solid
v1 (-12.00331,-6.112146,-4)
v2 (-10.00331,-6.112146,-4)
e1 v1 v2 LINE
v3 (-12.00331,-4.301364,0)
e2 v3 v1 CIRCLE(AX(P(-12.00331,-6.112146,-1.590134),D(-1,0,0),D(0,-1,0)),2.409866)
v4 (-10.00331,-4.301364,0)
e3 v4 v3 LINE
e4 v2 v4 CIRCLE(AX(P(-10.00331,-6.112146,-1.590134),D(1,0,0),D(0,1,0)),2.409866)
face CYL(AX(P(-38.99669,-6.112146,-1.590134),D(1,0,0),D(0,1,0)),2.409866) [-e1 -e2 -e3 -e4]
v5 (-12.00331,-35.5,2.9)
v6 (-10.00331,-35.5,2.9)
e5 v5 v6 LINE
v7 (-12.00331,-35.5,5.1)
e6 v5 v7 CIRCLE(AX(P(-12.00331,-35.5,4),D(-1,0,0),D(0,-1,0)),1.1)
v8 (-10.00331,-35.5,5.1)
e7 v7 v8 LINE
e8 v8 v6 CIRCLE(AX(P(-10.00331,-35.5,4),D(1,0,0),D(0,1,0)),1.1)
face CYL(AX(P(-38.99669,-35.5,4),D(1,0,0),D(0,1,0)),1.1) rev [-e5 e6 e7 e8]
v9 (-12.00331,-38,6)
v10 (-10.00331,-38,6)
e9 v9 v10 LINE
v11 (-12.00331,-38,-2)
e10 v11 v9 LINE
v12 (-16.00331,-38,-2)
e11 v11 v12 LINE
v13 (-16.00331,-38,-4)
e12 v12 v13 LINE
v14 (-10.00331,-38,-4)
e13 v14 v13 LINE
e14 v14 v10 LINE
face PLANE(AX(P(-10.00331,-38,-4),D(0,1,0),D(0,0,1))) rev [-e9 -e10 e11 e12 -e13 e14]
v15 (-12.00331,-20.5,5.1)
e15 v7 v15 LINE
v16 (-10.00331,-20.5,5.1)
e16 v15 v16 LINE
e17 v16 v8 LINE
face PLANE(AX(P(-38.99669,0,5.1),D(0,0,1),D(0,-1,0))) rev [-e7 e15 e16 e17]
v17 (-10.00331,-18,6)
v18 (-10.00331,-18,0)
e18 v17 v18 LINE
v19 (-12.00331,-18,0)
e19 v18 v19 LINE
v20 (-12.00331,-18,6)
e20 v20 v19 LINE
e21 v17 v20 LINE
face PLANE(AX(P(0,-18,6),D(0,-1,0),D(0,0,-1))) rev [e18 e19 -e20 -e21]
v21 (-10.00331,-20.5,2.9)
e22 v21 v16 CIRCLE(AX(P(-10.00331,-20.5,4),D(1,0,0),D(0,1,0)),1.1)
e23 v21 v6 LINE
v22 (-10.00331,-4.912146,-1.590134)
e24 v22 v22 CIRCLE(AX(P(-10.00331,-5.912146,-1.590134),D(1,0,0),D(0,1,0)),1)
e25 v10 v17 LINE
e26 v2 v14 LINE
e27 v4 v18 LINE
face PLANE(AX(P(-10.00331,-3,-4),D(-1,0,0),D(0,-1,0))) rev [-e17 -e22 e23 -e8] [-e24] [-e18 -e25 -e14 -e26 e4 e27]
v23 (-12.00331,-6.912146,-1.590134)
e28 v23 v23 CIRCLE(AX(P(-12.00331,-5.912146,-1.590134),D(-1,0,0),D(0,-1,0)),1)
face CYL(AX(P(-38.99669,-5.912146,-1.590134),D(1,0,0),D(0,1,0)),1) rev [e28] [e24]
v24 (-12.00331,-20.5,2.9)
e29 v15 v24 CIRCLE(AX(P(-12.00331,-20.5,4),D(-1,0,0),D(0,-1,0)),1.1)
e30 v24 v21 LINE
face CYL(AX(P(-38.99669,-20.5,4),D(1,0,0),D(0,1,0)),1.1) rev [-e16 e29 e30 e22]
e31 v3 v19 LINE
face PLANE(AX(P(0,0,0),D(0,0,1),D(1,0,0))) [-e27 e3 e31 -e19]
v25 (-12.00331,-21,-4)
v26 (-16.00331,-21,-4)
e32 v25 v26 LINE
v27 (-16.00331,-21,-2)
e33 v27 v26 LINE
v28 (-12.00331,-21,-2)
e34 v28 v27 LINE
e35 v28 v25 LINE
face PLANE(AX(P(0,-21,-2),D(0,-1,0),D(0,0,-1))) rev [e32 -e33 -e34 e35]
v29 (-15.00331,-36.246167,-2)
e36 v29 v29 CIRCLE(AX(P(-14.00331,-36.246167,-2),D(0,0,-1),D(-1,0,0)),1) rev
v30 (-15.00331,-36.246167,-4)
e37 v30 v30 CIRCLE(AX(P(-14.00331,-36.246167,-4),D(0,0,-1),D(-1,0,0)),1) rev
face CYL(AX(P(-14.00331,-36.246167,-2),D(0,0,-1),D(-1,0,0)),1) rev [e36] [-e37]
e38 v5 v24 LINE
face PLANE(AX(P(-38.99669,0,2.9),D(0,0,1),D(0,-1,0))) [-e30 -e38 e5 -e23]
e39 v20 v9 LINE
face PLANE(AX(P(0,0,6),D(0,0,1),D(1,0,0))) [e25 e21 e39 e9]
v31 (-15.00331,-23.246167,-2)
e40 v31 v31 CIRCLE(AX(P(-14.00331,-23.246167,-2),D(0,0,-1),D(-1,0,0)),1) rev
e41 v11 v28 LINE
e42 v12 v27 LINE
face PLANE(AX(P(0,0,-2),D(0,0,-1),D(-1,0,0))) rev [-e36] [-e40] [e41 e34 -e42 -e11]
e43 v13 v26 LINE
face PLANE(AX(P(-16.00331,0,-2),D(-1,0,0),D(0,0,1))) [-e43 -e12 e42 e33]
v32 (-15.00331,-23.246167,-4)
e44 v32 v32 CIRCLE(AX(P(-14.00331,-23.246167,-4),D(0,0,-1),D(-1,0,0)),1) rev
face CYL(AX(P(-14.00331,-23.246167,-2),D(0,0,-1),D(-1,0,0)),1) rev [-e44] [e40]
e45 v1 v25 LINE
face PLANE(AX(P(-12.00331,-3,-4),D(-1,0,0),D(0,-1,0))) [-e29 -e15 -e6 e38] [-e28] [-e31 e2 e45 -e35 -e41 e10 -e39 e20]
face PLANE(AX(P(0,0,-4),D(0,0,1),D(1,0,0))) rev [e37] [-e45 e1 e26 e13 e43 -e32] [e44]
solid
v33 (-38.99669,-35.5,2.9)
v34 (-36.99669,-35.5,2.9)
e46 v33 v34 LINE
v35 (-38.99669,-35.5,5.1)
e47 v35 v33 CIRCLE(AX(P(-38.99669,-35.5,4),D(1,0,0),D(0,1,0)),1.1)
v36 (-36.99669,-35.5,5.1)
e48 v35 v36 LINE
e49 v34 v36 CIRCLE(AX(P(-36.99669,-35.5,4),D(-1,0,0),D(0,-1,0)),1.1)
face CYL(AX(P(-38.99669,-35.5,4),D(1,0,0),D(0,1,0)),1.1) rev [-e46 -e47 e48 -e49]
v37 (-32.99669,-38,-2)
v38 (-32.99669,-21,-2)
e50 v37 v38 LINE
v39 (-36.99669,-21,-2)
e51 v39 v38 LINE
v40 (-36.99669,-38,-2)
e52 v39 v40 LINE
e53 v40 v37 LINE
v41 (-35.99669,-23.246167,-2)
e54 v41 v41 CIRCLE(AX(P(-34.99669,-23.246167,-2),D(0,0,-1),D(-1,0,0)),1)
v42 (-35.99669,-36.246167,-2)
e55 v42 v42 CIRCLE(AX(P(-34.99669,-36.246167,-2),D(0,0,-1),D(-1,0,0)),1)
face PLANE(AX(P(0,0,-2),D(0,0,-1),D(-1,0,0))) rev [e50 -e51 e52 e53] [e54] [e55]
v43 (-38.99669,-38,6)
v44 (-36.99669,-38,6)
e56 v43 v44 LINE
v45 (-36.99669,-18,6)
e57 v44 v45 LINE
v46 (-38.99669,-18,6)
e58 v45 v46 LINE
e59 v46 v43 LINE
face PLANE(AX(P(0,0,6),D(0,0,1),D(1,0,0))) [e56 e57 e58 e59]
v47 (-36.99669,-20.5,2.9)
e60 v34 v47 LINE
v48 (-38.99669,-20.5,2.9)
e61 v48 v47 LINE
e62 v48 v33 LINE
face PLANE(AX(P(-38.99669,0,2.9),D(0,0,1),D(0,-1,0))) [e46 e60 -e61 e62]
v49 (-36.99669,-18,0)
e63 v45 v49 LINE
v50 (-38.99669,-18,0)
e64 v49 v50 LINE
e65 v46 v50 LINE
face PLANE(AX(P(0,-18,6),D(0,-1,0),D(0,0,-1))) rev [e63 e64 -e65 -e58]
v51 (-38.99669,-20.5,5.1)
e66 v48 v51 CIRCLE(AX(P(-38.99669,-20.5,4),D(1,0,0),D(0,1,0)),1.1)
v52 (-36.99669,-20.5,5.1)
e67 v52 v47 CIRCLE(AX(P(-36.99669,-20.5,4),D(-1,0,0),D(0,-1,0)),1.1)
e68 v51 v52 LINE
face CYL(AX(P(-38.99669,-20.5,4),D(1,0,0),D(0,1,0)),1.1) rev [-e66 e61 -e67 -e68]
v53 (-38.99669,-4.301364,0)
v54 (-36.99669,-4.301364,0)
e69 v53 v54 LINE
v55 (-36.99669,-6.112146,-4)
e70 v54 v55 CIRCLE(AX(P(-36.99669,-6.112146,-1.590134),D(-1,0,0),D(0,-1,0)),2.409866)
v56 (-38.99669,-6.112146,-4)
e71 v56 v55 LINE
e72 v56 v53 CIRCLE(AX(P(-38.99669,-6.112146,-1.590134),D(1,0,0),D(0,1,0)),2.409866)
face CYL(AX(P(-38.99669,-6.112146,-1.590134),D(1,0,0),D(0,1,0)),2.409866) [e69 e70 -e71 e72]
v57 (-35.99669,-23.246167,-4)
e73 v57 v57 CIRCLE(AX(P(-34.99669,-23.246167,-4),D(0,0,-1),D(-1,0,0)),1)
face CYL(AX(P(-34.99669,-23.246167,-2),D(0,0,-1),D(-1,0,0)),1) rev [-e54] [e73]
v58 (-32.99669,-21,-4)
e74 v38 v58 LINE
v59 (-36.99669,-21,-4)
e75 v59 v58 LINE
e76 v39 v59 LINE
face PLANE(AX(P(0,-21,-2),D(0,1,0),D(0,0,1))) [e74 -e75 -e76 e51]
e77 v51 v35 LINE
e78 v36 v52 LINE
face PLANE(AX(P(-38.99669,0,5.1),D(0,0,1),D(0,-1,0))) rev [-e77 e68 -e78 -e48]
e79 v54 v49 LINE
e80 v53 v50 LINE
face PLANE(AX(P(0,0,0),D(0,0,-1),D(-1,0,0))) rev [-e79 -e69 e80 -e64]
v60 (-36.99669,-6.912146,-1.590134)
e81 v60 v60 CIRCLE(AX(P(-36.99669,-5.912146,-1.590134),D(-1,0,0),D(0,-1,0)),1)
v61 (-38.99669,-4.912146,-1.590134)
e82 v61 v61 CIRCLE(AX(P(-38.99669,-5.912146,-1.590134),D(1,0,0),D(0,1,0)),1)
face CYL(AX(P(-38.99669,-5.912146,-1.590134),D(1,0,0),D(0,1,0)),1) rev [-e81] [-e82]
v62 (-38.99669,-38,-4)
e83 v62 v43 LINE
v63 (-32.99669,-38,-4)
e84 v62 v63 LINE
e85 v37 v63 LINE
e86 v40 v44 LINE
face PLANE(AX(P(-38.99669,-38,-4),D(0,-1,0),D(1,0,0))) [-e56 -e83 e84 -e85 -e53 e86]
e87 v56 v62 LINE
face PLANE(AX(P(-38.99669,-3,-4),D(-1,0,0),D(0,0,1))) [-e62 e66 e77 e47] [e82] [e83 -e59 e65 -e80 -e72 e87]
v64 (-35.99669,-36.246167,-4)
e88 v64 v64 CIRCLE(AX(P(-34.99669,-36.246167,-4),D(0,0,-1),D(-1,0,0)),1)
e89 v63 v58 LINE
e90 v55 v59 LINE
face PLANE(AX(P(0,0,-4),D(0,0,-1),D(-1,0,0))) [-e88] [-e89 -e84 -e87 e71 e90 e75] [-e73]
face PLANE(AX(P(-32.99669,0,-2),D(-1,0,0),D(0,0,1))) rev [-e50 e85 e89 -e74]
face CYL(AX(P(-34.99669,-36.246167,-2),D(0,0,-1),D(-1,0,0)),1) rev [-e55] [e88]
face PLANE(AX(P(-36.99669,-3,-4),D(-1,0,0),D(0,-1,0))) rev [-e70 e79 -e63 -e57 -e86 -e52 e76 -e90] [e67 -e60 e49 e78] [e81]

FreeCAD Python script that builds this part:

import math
import FreeCAD as App
import Part
import Sketcher
from FreeCAD import Vector
Q = App.Units.Quantity

doc = App.newDocument("Part")
body = doc.addObject("PartDesign::Body", "Body")

# Sketch on XY plane
sketch1 = body.newObject("Sketcher::SketchObject", "Sketch")
sketch1.AttachmentSupport = (doc.getObject("XY_Plane"), [""])
sketch1.MapMode = "FlatFace"
sketch1.addGeometry(Part.LineSegment(Vector(-39, -3, 0), Vector(-39, -38, 0)), False)
sketch1.addGeometry(Part.LineSegment(Vector(-39, -38, 0), Vector(-37, -38, 0)), False)
sketch1.addGeometry(Part.LineSegment(Vector(-37, -38, 0), Vector(-37, -3, 0)), False)
sketch1.addGeometry(Part.LineSegment(Vector(-37, -3, 0), Vector(-39, -3, 0)), False)
sketch1.addConstraint(Sketcher.Constraint("Coincident", 0, 2, 1, 1))
sketch1.addConstraint(Sketcher.Constraint("Coincident", 1, 2, 2, 1))
sketch1.addConstraint(Sketcher.Constraint("Coincident", 2, 2, 3, 1))
sketch1.addConstraint(Sketcher.Constraint("Coincident", 3, 2, 0, 1))
sketch1.addConstraint(Sketcher.Constraint("Vertical", 0))
sketch1.addConstraint(Sketcher.Constraint("Horizontal", 1))
sketch1.addConstraint(Sketcher.Constraint("Vertical", 2))
sketch1.addConstraint(Sketcher.Constraint("Horizontal", 3))
sketch1.addConstraint(Sketcher.Constraint("DistanceX", 1, 1, 1, 2, Q("2 mm")))
sketch1.addConstraint(Sketcher.Constraint("DistanceY", 0, 2, 0, 1, Q("35 mm")))
sketch1.addConstraint(Sketcher.Constraint("DistanceY", 0, 2, -1, 1, Q("38 mm")))
sketch1.addConstraint(Sketcher.Constraint("DistanceX", 0, 2, -1, 1, Q("38.99669 mm")))
pad1 = body.newObject("PartDesign::Pad", "Pad")
pad1.Profile = sketch1
pad1.Length = 4
pad1.Reversed = True
body2 = doc.addObject("PartDesign::Body", "Body001")

# Sketch on XY plane
sketch2 = body2.newObject("Sketcher::SketchObject", "Sketch001")
sketch2.AttachmentSupport = (doc.getObject("XY_Plane001"), [""])
sketch2.MapMode = "FlatFace"
sketch2.addGeometry(Part.LineSegment(Vector(-12, -3, 0), Vector(-12, -38, 0)), False)
sketch2.addGeometry(Part.LineSegment(Vector(-12, -38, 0), Vector(-10, -38, 0)), False)
sketch2.addGeometry(Part.LineSegment(Vector(-10, -38, 0), Vector(-10, -3, 0)), False)
sketch2.addGeometry(Part.LineSegment(Vector(-10, -3, 0), Vector(-12, -3, 0)), False)
sketch2.addConstraint(Sketcher.Constraint("Coincident", 0, 2, 1, 1))
sketch2.addConstraint(Sketcher.Constraint("Coincident", 1, 2, 2, 1))
sketch2.addConstraint(Sketcher.Constraint("Coincident", 2, 2, 3, 1))
sketch2.addConstraint(Sketcher.Constraint("Coincident", 3, 2, 0, 1))
sketch2.addConstraint(Sketcher.Constraint("Vertical", 0))
sketch2.addConstraint(Sketcher.Constraint("Horizontal", 1))
sketch2.addConstraint(Sketcher.Constraint("Vertical", 2))
sketch2.addConstraint(Sketcher.Constraint("Horizontal", 3))
sketch2.addConstraint(Sketcher.Constraint("DistanceX", 1, 1, 1, 2, Q("2 mm")))
sketch2.addConstraint(Sketcher.Constraint("DistanceY", 0, 2, 0, 1, Q("35 mm")))
sketch2.addConstraint(Sketcher.Constraint("DistanceY", 0, 2, -1, 1, Q("38 mm")))
sketch2.addConstraint(Sketcher.Constraint("DistanceX", 0, 2, -1, 1, Q("12.00331 mm")))
pad2 = body2.newObject("PartDesign::Pad", "Pad001")
pad2.Profile = sketch2
pad2.Length = 4
pad2.Reversed = True
body.AllowCompound = True
doc.recompute()

boolean = body.newObject("PartDesign::Boolean", "Boolean")
boolean.Type = "Fuse"
boolean.addObjects([body2])

# Sketch on XY plane
sketch3 = body.newObject("Sketcher::SketchObject", "Sketch002")
sketch3.AttachmentSupport = (doc.getObject("XY_Plane"), [""])
sketch3.MapMode = "FlatFace"
sketch3.AttachmentOffset = App.Placement(Vector(0, 0, -4), App.Rotation())
sketch3.addGeometry(Part.LineSegment(Vector(-33, -21, 0), Vector(-33, -38, 0)), False)
sketch3.addGeometry(Part.LineSegment(Vector(-33, -38, 0), Vector(-37, -38, 0)), False)
sketch3.addGeometry(Part.LineSegment(Vector(-37, -38, 0), Vector(-37, -21, 0)), False)
sketch3.addGeometry(Part.LineSegment(Vector(-37, -21, 0), Vector(-33, -21, 0)), False)
sketch3.addGeometry(Part.LineSegment(Vector(-12, -21, 0), Vector(-12, -38, 0)), False)
sketch3.addGeometry(Part.LineSegment(Vector(-12, -38, 0), Vector(-16, -38, 0)), False)
sketch3.addGeometry(Part.LineSegment(Vector(-16, -38, 0), Vector(-16, -21, 0)), False)
sketch3.addGeometry(Part.LineSegment(Vector(-16, -21, 0), Vector(-12, -21, 0)), False)
sketch3.addConstraint(Sketcher.Constraint("Coincident", 0, 2, 1, 1))
sketch3.addConstraint(Sketcher.Constraint("Coincident", 1, 2, 2, 1))
sketch3.addConstraint(Sketcher.Constraint("Coincident", 2, 2, 3, 1))
sketch3.addConstraint(Sketcher.Constraint("Coincident", 3, 2, 0, 1))
sketch3.addConstraint(Sketcher.Constraint("Coincident", 4, 2, 5, 1))
sketch3.addConstraint(Sketcher.Constraint("Coincident", 5, 2, 6, 1))
sketch3.addConstraint(Sketcher.Constraint("Coincident", 6, 2, 7, 1))
sketch3.addConstraint(Sketcher.Constraint("Coincident", 7, 2, 4, 1))
sketch3.addConstraint(Sketcher.Constraint("Vertical", 0))
sketch3.addConstraint(Sketcher.Constraint("Horizontal", 1))
sketch3.addConstraint(Sketcher.Constraint("Vertical", 2))
sketch3.addConstraint(Sketcher.Constraint("Horizontal", 3))
sketch3.addConstraint(Sketcher.Constraint("Vertical", 4))
sketch3.addConstraint(Sketcher.Constraint("Horizontal", 5))
sketch3.addConstraint(Sketcher.Constraint("Vertical", 6))
sketch3.addConstraint(Sketcher.Constraint("Horizontal", 7))
sketch3.addConstraint(Sketcher.Constraint("Horizontal", 1, 2, 4, 2))
sketch3.addConstraint(Sketcher.Constraint("Horizontal", 3, 2, 6, 2))
sketch3.addConstraint(Sketcher.Constraint("Equal", 3, 5))
sketch3.addConstraint(Sketcher.Constraint("DistanceX", 1, 2, 1, 1, Q("4 mm")))
sketch3.addConstraint(Sketcher.Constraint("DistanceY", 0, 2, 0, 1, Q("17 mm")))
sketch3.addConstraint(Sketcher.Constraint("DistanceY", 0, 2, -1, 1, Q("38 mm")))
sketch3.addConstraint(Sketcher.Constraint("DistanceX", 0, 2, -1, 1, Q("32.99669 mm")))
sketch3.addConstraint(Sketcher.Constraint("DistanceX", 4, 2, -1, 1, Q("12.00331 mm")))
pad3 = body.newObject("PartDesign::Pad", "Pad002")
pad3.Profile = sketch3
pad3.Length = 2

# Sketch on XY plane
sketch4 = body.newObject("Sketcher::SketchObject", "Sketch003")
sketch4.AttachmentSupport = (doc.getObject("XY_Plane"), [""])
sketch4.MapMode = "FlatFace"
sketch4.AttachmentOffset = App.Placement(Vector(0, 0, -4), App.Rotation())
sketch4.addGeometry(Part.Circle(Vector(-35, -36.2, 0), Vector(0, 0, 1), 1), False)
sketch4.addGeometry(Part.Circle(Vector(-35, -23.2, 0), Vector(0, 0, 1), 1), False)
sketch4.addGeometry(Part.Circle(Vector(-14, -36.2, 0), Vector(0, 0, 1), 1), False)
sketch4.addGeometry(Part.Circle(Vector(-14, -23.2, 0), Vector(0, 0, 1), 1), False)
sketch4.addConstraint(Sketcher.Constraint("Equal", 0, 1))
sketch4.addConstraint(Sketcher.Constraint("Equal", 1, 2))
sketch4.addConstraint(Sketcher.Constraint("Equal", 2, 3))
sketch4.addConstraint(Sketcher.Constraint("Horizontal", 0, 3, 2, 3))
sketch4.addConstraint(Sketcher.Constraint("Horizontal", 1, 3, 3, 3))
sketch4.addConstraint(Sketcher.Constraint("Vertical", 0, 3, 1, 3))
sketch4.addConstraint(Sketcher.Constraint("Vertical", 2, 3, 3, 3))
sketch4.addConstraint(Sketcher.Constraint("Diameter", 0, Q("2 mm")))
sketch4.addConstraint(Sketcher.Constraint("DistanceY", 0, 3, 1, 3, Q("13 mm")))
sketch4.addConstraint(Sketcher.Constraint("DistanceX", 0, 3, -1, 1, Q("34.99669 mm")))
sketch4.addConstraint(Sketcher.Constraint("DistanceX", 2, 3, -1, 1, Q("14.00331 mm")))
sketch4.addConstraint(Sketcher.Constraint("DistanceY", 0, 3, -1, 1, Q("36.246167 mm")))
pocket1 = body.newObject("PartDesign::Pocket", "Pocket")
pocket1.Profile = sketch4
pocket1.Length = 2
pocket1.Reversed = True

# Sketch on XY plane
sketch5 = body.newObject("Sketcher::SketchObject", "Sketch004")
sketch5.AttachmentSupport = (doc.getObject("XY_Plane"), [""])
sketch5.MapMode = "FlatFace"
sketch5.addGeometry(Part.LineSegment(Vector(-12, -18, 0), Vector(-12, -38, 0)), False)
sketch5.addGeometry(Part.LineSegment(Vector(-12, -38, 0), Vector(-10, -38, 0)), False)
sketch5.addGeometry(Part.LineSegment(Vector(-10, -38, 0), Vector(-10, -18, 0)), False)
sketch5.addGeometry(Part.LineSegment(Vector(-10, -18, 0), Vector(-12, -18, 0)), False)
sketch5.addGeometry(Part.LineSegment(Vector(-39, -18, 0), Vector(-39, -38, 0)), False)
sketch5.addGeometry(Part.LineSegment(Vector(-39, -38, 0), Vector(-37, -38, 0)), False)
sketch5.addGeometry(Part.LineSegment(Vector(-37, -38, 0), Vector(-37, -18, 0)), False)
sketch5.addGeometry(Part.LineSegment(Vector(-37, -18, 0), Vector(-39, -18, 0)), False)
sketch5.addConstraint(Sketcher.Constraint("Coincident", 0, 2, 1, 1))
sketch5.addConstraint(Sketcher.Constraint("Coincident", 1, 2, 2, 1))
sketch5.addConstraint(Sketcher.Constraint("Coincident", 2, 2, 3, 1))
sketch5.addConstraint(Sketcher.Constraint("Coincident", 3, 2, 0, 1))
sketch5.addConstraint(Sketcher.Constraint("Coincident", 4, 2, 5, 1))
sketch5.addConstraint(Sketcher.Constraint("Coincident", 5, 2, 6, 1))
sketch5.addConstraint(Sketcher.Constraint("Coincident", 6, 2, 7, 1))
sketch5.addConstraint(Sketcher.Constraint("Coincident", 7, 2, 4, 1))
sketch5.addConstraint(Sketcher.Constraint("Vertical", 0))
sketch5.addConstraint(Sketcher.Constraint("Horizontal", 1))
sketch5.addConstraint(Sketcher.Constraint("Vertical", 2))
sketch5.addConstraint(Sketcher.Constraint("Horizontal", 3))
sketch5.addConstraint(Sketcher.Constraint("Vertical", 4))
sketch5.addConstraint(Sketcher.Constraint("Horizontal", 5))
sketch5.addConstraint(Sketcher.Constraint("Vertical", 6))
sketch5.addConstraint(Sketcher.Constraint("Horizontal", 7))
sketch5.addConstraint(Sketcher.Constraint("Horizontal", 1, 2, 4, 2))
sketch5.addConstraint(Sketcher.Constraint("Horizontal", 3, 2, 6, 2))
sketch5.addConstraint(Sketcher.Constraint("Equal", 3, 5))
sketch5.addConstraint(Sketcher.Constraint("DistanceX", 1, 1, 1, 2, Q("2 mm")))
sketch5.addConstraint(Sketcher.Constraint("DistanceY", 0, 2, 0, 1, Q("20 mm")))
sketch5.addConstraint(Sketcher.Constraint("DistanceY", 0, 2, -1, 1, Q("38 mm")))
sketch5.addConstraint(Sketcher.Constraint("DistanceX", 0, 2, -1, 1, Q("12.00331 mm")))
sketch5.addConstraint(Sketcher.Constraint("DistanceX", 4, 2, -1, 1, Q("38.99669 mm")))
pad4 = body.newObject("PartDesign::Pad", "Pad003")
pad4.Profile = sketch5
pad4.Length = 6

# Sketch on YZ plane
sketch6 = body.newObject("Sketcher::SketchObject", "Sketch005")
sketch6.AttachmentSupport = (doc.getObject("YZ_Plane"), [""])
sketch6.MapMode = "FlatFace"
sketch6.AttachmentOffset = App.Placement(Vector(0, 0, -10.00331), App.Rotation())
sketch6.addGeometry(Part.LineSegment(Vector(-20.5, 5.1, 0), Vector(-35.5, 5.1, 0)), False)
sketch6.addGeometry(Part.ArcOfCircle(Part.Circle(Vector(-35.5, 4, 0), Vector(0, 0, 1), 1.1), math.radians(90), math.radians(270)), False)
sketch6.addGeometry(Part.LineSegment(Vector(-35.5, 2.9, 0), Vector(-20.5, 2.9, 0)), False)
sketch6.addGeometry(Part.ArcOfCircle(Part.Circle(Vector(-20.5, 4, 0), Vector(0, 0, 1), 1.1), math.radians(-90), math.radians(90)), False)
sketch6.addConstraint(Sketcher.Constraint("Tangent", 0, 2, 1, 1))
sketch6.addConstraint(Sketcher.Constraint("Tangent", 1, 2, 2, 1))
sketch6.addConstraint(Sketcher.Constraint("Tangent", 2, 2, 3, 1))
sketch6.addConstraint(Sketcher.Constraint("Tangent", 3, 2, 0, 1))
sketch6.addConstraint(Sketcher.Constraint("Horizontal", 0))
sketch6.addConstraint(Sketcher.Constraint("Horizontal", 2))
sketch6.addConstraint(Sketcher.Constraint("Radius", 1, Q("1.1 mm")))
sketch6.addConstraint(Sketcher.Constraint("DistanceX", 0, 2, 0, 1, Q("15 mm")))
sketch6.addConstraint(Sketcher.Constraint("DistanceY", -1, 1, 1, 3, Q("4 mm")))
sketch6.addConstraint(Sketcher.Constraint("DistanceX", 1, 3, -1, 1, Q("35.5 mm")))
pocket2 = body.newObject("PartDesign::Pocket", "Pocket001")
pocket2.Profile = sketch6
pocket2.Type = "ThroughAll"

# Sketch on YZ plane
sketch7 = body.newObject("Sketcher::SketchObject", "Sketch006")
sketch7.AttachmentSupport = (doc.getObject("YZ_Plane"), [""])
sketch7.MapMode = "FlatFace"
sketch7.AttachmentOffset = App.Placement(Vector(0, 0, -10.00331), App.Rotation())
sketch7.addGeometry(Part.LineSegment(Vector(-3, 0, 0), Vector(-4.3, 0, 0)), False)
sketch7.addGeometry(Part.ArcOfCircle(Part.Circle(Vector(-6.1, -1.6, 0), Vector(0, 0, 1), 2.4), math.radians(-90), math.radians(41)), False)
sketch7.addGeometry(Part.LineSegment(Vector(-6.1, -4, 0), Vector(-3, -4, 0)), False)
sketch7.addGeometry(Part.LineSegment(Vector(-3, -4, 0), Vector(-3, 0, 0)), False)
sketch7.addConstraint(Sketcher.Constraint("Coincident", 0, 2, 1, 2))
sketch7.addConstraint(Sketcher.Constraint("Tangent", 1, 1, 2, 1))
sketch7.addConstraint(Sketcher.Constraint("Coincident", 2, 2, 3, 1))
sketch7.addConstraint(Sketcher.Constraint("Coincident", 3, 2, 0, 1))
sketch7.addConstraint(Sketcher.Constraint("Horizontal", 0))
sketch7.addConstraint(Sketcher.Constraint("Horizontal", 2))
sketch7.addConstraint(Sketcher.Constraint("Vertical", 3))
sketch7.addConstraint(Sketcher.Constraint("PointOnObject", 0, 2, -1))
sketch7.addConstraint(Sketcher.Constraint("DistanceY", 3, 1, 3, 2, Q("4 mm")))
sketch7.addConstraint(Sketcher.Constraint("DistanceX", 2, 2, -1, 1, Q("3 mm")))
sketch7.addConstraint(Sketcher.Constraint("Radius", 1, Q("2.409866 mm")))
sketch7.addConstraint(Sketcher.Constraint("DistanceX", 0, 2, 0, 1, Q("1.301364 mm")))
pocket3 = body.newObject("PartDesign::Pocket", "Pocket002")
pocket3.Profile = sketch7
pocket3.Type = "ThroughAll"

# Sketch on YZ plane
sketch8 = body.newObject("Sketcher::SketchObject", "Sketch007")
sketch8.AttachmentSupport = (doc.getObject("YZ_Plane"), [""])
sketch8.MapMode = "FlatFace"
sketch8.AttachmentOffset = App.Placement(Vector(0, 0, -10.00331), App.Rotation())
sketch8.addGeometry(Part.Circle(Vector(-5.9, -1.6, 0), Vector(0, 0, 1), 1), False)
sketch8.addConstraint(Sketcher.Constraint("Diameter", 0, Q("2 mm")))
sketch8.addConstraint(Sketcher.Constraint("DistanceX", 0, 3, -1, 1, Q("5.912146 mm")))
sketch8.addConstraint(Sketcher.Constraint("DistanceY", 0, 3, -1, 1, Q("1.590134 mm")))
pocket4 = body.newObject("PartDesign::Pocket", "Pocket003")
pocket4.Profile = sketch8
pocket4.Type = "ThroughAll"

doc.recompute()
